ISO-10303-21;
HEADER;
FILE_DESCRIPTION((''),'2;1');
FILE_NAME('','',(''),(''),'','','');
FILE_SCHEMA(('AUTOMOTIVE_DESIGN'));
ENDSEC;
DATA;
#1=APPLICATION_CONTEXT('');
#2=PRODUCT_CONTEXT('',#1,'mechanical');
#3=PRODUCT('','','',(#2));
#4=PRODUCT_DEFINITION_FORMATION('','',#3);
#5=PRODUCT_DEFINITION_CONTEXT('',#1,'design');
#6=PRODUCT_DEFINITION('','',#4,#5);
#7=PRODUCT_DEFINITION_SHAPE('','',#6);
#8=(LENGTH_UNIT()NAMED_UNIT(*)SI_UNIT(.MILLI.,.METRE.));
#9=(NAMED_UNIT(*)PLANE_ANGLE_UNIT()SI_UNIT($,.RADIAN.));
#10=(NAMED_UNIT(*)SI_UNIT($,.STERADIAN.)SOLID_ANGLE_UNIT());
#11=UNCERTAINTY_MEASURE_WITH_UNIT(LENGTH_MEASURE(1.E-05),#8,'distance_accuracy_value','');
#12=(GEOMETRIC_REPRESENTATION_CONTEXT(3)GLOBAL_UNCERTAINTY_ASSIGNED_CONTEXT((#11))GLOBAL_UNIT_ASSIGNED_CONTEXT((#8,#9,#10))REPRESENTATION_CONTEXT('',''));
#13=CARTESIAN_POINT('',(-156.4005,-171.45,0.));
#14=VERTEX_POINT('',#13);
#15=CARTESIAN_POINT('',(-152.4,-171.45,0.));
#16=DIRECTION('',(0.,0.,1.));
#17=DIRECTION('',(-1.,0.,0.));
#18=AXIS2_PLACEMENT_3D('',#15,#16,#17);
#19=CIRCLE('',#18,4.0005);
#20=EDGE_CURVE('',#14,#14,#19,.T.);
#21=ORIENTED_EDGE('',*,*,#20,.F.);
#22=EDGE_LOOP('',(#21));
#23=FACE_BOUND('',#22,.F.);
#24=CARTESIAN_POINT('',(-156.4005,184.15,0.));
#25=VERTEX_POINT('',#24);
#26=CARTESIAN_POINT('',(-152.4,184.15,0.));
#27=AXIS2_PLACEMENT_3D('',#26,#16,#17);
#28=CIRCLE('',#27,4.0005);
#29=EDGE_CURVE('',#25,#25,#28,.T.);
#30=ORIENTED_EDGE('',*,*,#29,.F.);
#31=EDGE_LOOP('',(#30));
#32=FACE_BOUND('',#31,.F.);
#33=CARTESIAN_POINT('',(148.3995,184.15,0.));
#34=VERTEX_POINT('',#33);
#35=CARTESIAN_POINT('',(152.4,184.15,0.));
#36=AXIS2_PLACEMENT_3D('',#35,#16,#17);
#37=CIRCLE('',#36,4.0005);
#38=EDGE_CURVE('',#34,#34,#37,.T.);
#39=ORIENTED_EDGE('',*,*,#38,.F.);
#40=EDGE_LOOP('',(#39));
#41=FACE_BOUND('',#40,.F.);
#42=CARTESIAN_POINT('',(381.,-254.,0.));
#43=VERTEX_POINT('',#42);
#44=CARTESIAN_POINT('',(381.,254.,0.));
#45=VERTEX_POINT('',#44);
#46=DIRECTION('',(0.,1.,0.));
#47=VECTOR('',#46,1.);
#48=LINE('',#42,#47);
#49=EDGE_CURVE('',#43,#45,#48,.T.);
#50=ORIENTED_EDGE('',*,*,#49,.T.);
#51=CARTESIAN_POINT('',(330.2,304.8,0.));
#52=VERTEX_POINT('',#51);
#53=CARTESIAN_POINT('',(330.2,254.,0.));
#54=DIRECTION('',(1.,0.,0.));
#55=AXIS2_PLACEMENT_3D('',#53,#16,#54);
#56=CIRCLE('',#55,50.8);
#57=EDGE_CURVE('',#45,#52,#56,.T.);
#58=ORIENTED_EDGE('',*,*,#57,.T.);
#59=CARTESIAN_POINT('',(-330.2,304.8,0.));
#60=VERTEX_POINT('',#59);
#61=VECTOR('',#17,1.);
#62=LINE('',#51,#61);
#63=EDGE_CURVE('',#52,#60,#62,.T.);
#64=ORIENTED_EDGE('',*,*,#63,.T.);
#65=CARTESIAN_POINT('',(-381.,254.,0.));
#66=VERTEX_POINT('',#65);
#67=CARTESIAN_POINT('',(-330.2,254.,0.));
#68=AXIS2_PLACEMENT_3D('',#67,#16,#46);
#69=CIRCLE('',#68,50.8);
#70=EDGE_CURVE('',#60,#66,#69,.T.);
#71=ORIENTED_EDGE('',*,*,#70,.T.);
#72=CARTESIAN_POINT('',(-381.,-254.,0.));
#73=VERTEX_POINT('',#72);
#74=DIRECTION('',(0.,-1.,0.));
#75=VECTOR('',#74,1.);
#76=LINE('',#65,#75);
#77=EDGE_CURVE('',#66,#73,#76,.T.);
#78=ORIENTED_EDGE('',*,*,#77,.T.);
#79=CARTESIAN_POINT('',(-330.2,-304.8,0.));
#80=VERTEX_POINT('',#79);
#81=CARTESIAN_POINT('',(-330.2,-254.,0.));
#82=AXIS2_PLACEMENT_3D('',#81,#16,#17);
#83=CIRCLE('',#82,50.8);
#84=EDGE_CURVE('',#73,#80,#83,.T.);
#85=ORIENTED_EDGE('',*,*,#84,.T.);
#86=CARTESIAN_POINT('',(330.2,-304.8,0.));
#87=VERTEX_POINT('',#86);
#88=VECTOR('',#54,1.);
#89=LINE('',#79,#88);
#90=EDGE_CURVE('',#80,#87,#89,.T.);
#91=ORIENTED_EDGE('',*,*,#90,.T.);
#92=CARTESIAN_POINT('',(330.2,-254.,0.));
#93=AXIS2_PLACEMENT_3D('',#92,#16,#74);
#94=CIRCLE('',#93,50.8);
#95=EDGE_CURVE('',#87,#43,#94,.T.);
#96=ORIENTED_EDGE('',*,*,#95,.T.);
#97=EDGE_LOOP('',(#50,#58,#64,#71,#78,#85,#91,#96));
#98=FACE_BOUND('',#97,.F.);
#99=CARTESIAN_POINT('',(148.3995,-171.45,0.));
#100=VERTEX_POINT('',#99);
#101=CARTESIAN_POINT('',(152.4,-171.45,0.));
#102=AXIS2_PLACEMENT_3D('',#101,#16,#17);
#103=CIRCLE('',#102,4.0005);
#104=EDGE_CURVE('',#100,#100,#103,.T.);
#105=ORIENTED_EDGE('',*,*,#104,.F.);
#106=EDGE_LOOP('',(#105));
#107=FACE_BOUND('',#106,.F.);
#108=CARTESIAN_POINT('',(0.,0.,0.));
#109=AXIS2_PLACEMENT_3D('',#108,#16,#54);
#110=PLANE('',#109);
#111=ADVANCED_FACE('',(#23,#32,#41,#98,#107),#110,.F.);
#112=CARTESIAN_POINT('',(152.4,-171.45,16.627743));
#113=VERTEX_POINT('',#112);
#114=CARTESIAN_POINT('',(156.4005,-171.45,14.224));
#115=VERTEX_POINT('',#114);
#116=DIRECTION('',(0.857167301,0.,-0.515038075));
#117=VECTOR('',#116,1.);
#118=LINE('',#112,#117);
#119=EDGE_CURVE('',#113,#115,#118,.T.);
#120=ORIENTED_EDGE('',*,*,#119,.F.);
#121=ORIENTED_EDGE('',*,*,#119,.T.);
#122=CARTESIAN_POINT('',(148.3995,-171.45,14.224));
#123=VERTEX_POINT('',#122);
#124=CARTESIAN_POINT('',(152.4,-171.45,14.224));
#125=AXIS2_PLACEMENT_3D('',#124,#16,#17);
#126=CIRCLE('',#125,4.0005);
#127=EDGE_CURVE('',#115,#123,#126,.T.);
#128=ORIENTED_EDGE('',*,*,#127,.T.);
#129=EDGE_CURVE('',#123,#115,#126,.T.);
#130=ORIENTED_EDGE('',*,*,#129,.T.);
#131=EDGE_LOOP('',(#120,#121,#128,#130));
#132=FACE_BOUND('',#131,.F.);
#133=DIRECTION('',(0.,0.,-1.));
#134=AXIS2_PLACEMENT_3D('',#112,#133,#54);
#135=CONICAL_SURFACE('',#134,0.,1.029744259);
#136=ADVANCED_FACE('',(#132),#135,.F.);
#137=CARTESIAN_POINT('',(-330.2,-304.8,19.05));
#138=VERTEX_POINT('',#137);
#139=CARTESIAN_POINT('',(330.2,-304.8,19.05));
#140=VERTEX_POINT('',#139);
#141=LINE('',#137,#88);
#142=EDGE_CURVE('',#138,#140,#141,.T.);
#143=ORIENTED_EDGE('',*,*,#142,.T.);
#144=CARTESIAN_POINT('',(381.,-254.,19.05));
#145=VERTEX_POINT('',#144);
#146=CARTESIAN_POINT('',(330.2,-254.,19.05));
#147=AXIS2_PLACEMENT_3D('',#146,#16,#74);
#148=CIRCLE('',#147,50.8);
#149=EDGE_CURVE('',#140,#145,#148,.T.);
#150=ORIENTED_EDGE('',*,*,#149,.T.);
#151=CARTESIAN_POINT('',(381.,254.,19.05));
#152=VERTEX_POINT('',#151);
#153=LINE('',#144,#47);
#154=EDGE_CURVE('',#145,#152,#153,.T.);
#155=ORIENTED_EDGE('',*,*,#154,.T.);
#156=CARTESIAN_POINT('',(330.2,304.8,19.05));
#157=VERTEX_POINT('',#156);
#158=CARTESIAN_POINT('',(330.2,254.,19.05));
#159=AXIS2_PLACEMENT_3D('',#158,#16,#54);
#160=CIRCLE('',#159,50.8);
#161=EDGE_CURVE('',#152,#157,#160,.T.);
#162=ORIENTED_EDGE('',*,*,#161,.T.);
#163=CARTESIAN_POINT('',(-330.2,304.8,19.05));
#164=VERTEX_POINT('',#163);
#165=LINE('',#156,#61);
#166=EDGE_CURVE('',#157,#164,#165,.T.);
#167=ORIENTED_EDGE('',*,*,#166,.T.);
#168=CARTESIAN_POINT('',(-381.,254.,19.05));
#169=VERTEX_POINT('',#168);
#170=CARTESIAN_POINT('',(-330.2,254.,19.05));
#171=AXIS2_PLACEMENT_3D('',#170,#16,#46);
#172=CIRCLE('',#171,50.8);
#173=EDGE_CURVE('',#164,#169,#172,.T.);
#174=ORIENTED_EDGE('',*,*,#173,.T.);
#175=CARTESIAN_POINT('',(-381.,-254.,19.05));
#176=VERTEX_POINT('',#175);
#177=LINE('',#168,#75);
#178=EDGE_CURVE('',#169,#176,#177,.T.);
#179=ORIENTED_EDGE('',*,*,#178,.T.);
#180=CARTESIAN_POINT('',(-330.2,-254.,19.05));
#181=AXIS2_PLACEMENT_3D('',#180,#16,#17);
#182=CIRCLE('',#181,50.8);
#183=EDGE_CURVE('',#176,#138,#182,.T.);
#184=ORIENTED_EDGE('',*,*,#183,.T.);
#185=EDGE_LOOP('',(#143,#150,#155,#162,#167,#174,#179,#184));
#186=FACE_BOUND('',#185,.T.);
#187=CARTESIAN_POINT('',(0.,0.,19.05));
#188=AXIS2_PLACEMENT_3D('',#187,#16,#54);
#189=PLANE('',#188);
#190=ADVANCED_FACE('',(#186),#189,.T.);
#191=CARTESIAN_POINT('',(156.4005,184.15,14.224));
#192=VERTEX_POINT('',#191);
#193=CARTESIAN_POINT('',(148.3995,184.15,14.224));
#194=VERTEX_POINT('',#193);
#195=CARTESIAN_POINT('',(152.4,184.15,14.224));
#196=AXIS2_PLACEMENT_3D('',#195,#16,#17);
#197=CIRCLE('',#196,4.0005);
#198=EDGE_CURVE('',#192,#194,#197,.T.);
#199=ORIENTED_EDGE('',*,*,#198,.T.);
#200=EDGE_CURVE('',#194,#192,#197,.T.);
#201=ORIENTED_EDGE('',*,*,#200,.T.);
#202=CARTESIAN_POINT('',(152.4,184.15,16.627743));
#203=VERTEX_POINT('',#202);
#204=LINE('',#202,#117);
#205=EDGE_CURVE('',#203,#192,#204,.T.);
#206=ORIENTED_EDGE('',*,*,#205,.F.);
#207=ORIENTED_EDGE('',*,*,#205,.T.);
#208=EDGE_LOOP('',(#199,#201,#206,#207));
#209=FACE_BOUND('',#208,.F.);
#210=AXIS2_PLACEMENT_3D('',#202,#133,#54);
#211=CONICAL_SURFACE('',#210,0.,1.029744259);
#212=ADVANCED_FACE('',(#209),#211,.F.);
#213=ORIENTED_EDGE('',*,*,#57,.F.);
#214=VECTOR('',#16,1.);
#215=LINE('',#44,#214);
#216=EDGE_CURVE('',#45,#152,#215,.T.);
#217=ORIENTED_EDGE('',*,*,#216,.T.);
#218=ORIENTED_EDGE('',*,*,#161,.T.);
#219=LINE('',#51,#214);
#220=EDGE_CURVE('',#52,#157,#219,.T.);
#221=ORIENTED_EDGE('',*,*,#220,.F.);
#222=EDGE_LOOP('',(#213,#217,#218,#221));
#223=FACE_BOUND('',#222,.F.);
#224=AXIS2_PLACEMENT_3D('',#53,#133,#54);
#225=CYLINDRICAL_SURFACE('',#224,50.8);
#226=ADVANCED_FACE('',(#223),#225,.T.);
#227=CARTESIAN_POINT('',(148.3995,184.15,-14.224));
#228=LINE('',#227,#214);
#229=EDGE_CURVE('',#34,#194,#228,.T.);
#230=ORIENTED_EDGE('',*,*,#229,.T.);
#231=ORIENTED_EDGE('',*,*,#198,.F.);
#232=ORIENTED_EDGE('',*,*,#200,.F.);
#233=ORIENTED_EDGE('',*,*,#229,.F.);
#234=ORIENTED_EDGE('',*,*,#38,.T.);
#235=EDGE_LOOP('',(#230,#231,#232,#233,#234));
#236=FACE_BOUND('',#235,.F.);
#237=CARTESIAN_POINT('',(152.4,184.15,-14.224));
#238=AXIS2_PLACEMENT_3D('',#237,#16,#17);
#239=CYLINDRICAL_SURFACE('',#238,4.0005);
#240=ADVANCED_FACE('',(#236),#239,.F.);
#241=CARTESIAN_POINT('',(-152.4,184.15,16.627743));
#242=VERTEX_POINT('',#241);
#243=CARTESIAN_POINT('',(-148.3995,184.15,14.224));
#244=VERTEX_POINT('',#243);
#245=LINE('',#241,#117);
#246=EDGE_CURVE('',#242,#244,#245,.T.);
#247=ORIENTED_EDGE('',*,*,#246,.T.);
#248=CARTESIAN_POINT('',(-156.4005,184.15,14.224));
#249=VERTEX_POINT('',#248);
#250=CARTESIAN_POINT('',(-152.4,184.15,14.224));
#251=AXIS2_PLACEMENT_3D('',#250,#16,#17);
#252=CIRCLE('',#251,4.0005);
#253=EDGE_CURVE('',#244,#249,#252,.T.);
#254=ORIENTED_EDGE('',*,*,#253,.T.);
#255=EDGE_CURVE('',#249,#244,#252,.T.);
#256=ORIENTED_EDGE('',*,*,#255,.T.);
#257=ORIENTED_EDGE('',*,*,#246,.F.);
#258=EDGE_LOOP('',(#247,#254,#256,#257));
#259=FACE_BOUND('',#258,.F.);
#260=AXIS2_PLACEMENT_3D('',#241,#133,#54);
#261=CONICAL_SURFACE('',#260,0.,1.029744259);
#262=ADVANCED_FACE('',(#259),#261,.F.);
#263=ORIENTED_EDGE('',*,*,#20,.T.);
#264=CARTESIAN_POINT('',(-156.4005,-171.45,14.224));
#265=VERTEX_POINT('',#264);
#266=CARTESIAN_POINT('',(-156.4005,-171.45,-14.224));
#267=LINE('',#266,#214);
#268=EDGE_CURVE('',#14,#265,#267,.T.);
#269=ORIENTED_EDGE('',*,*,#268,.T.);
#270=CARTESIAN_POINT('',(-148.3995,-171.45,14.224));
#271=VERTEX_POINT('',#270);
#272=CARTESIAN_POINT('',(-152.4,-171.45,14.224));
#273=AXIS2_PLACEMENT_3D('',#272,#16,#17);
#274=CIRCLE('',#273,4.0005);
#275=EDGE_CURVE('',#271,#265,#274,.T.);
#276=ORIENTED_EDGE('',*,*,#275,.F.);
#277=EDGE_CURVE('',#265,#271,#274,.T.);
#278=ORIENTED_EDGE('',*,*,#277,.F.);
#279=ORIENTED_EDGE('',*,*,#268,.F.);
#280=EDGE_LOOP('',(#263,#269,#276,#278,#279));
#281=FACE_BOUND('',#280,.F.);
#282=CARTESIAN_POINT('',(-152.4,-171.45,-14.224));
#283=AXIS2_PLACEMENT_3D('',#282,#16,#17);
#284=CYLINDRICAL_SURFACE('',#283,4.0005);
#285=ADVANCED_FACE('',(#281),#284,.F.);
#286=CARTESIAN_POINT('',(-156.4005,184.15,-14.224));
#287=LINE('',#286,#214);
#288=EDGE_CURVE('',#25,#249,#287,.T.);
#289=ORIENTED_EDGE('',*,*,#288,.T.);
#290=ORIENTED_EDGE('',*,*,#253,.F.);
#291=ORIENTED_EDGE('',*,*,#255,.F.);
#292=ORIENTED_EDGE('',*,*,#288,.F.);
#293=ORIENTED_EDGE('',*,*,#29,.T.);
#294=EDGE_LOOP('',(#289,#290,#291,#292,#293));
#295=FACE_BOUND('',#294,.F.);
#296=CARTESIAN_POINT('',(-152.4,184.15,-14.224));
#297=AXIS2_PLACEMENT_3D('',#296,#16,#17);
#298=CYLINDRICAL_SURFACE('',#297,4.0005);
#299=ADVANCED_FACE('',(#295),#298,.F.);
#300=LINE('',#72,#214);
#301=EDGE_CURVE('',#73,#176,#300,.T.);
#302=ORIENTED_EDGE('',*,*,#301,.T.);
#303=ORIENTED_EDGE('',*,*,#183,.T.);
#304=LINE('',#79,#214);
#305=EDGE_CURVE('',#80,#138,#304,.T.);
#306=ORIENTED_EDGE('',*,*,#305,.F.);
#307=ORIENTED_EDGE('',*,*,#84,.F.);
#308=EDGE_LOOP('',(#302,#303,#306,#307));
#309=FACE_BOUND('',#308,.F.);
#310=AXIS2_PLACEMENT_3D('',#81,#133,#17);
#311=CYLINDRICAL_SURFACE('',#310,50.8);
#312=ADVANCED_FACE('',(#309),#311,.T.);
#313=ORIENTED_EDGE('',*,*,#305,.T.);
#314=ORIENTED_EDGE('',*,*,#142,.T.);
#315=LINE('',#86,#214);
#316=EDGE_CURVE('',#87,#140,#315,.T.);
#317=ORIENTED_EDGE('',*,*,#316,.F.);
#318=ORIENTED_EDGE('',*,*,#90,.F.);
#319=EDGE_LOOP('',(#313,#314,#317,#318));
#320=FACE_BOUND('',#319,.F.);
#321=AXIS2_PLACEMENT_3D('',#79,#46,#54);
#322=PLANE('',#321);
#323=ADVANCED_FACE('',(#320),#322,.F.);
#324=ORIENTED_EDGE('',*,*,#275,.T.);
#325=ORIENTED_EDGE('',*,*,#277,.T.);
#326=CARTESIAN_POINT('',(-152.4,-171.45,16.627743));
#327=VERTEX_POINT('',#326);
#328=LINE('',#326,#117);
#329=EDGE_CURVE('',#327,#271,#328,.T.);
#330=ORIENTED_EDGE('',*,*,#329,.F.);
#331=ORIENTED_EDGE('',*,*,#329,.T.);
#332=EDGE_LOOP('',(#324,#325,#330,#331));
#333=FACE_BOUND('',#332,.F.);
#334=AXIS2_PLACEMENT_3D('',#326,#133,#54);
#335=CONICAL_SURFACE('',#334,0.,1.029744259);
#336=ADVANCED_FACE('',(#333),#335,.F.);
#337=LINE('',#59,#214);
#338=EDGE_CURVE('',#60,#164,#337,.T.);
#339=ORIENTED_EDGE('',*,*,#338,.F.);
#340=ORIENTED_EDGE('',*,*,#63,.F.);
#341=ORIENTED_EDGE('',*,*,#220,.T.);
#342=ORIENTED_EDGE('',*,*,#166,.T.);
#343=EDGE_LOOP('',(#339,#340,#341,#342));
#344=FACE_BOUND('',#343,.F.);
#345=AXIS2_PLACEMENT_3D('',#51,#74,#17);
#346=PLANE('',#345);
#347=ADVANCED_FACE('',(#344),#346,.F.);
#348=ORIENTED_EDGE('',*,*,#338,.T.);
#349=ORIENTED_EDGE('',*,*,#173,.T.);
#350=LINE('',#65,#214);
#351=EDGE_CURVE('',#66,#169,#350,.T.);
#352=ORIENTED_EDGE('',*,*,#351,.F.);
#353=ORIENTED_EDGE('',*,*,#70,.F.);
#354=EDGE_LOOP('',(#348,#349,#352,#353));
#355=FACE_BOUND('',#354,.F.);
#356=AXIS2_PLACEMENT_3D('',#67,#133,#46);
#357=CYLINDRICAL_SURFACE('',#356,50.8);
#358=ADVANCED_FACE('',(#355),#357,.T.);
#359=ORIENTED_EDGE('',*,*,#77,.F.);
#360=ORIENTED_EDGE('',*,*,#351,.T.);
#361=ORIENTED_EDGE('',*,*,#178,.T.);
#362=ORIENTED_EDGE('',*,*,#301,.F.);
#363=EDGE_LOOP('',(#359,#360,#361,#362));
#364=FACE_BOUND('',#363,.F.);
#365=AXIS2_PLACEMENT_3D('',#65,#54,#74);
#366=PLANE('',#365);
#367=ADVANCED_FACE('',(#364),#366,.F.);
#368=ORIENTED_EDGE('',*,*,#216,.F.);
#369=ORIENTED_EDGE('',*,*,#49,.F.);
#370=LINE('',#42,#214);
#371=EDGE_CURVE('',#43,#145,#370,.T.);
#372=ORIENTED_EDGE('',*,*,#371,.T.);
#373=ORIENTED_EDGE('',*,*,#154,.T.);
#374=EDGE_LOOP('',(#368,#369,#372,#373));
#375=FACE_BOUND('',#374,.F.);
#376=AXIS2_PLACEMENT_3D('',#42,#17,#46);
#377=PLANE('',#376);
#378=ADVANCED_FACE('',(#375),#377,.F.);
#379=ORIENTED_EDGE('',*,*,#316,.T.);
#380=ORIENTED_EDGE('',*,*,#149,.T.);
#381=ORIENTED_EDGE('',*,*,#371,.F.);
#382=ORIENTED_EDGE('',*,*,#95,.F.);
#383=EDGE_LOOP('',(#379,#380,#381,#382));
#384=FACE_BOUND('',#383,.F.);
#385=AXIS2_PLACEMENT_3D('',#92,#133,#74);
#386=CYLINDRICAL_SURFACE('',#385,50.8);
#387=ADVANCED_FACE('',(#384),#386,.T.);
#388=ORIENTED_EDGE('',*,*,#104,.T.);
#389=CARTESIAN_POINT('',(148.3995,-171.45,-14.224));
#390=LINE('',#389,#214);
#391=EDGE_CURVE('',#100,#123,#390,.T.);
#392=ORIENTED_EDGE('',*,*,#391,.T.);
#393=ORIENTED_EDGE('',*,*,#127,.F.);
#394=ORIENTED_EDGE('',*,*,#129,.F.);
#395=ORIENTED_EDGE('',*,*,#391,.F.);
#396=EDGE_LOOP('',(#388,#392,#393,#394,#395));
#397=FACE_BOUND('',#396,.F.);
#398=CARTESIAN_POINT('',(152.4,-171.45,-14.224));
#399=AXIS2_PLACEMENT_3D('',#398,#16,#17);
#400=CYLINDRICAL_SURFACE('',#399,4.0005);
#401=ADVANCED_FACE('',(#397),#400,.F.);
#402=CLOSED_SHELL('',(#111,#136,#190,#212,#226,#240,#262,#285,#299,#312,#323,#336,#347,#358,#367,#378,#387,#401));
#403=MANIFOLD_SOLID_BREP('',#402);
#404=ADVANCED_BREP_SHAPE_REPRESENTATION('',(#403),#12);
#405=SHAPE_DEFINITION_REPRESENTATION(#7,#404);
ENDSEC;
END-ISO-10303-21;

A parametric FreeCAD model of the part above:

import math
import FreeCAD as App
import Part
import Sketcher
Q = App.Units.Quantity

doc = App.newDocument("Part")
body = doc.addObject("PartDesign::Body", "Body")

sketch1 = body.newObject("Sketcher::SketchObject", "Sketch")
sketch1.AttachmentSupport = (doc.getObject("XY_Plane"), [""])
sketch1.MapMode = "FlatFace"
sketch1.addGeometry([
    Part.LineSegment(App.Vector(330, 305, 0), App.Vector(-330, 305, 0)),
    Part.ArcOfCircle(Part.Circle(App.Vector(-330, 254, 0), App.Vector(0, 0, 1), 51), math.radians(90), math.radians(180)),
    Part.LineSegment(App.Vector(-381, 254, 0), App.Vector(-381, -254, 0)),
    Part.ArcOfCircle(Part.Circle(App.Vector(-330, -254, 0), App.Vector(0, 0, 1), 51), math.radians(180), math.radians(270)),
    Part.LineSegment(App.Vector(-330, -305, 0), App.Vector(330, -305, 0)),
    Part.ArcOfCircle(Part.Circle(App.Vector(330, -254, 0), App.Vector(0, 0, 1), 51), math.radians(-90), math.radians(0)),
    Part.LineSegment(App.Vector(381, -254, 0), App.Vector(381, 254, 0)),
    Part.ArcOfCircle(Part.Circle(App.Vector(330, 254, 0), App.Vector(0, 0, 1), 51), math.radians(0), math.radians(90)),
], False)
sketch1.addConstraint([
    Sketcher.Constraint("Tangent", 0, 2, 1, 1),
    Sketcher.Constraint("Tangent", 1, 2, 2, 1),
    Sketcher.Constraint("Tangent", 2, 2, 3, 1),
    Sketcher.Constraint("Tangent", 3, 2, 4, 1),
    Sketcher.Constraint("Tangent", 4, 2, 5, 1),
    Sketcher.Constraint("Tangent", 5, 2, 6, 1),
    Sketcher.Constraint("Tangent", 6, 2, 7, 1),
    Sketcher.Constraint("Tangent", 7, 2, 0, 1),
    Sketcher.Constraint("Horizontal", 0),
    Sketcher.Constraint("Vertical", 2),
    Sketcher.Constraint("Horizontal", 4),
    Sketcher.Constraint("Vertical", 6),
    Sketcher.Constraint("Equal", 1, 3),
    Sketcher.Constraint("Equal", 3, 5),
    Sketcher.Constraint("Equal", 5, 7),
    Sketcher.Constraint("Symmetric", 1, 3, 5, 3, -1, 1),
    Sketcher.Constraint("Radius", 1, Q("2 in")),
    Sketcher.Constraint("DistanceX", 0, 2, 0, 1, Q("26 in")),
    Sketcher.Constraint("DistanceY", 2, 2, 2, 1, Q("20 in")),
])
pad1 = body.newObject("PartDesign::Pad", "Pad")
pad1.Profile = sketch1
pad1.Length = Q("0.75 in")

sketch2 = body.newObject("Sketcher::SketchObject", "Sketch001")
sketch2.AttachmentSupport = (doc.getObject("XY_Plane"), [""])
sketch2.MapMode = "FlatFace"
sketch2.addGeometry([
    Part.Circle(App.Vector(-152.4, -171.4, 0), App.Vector(0, 0, 1), 4),
    Part.Circle(App.Vector(152.4, -171.4, 0), App.Vector(0, 0, 1), 4),
    Part.Circle(App.Vector(152.4, 184.2, 0), App.Vector(0, 0, 1), 4),
    Part.Circle(App.Vector(-152.4, 184.2, 0), App.Vector(0, 0, 1), 4),
], False)
sketch2.addConstraint([
    Sketcher.Constraint("Equal", 0, 1),
    Sketcher.Constraint("Equal", 1, 2),
    Sketcher.Constraint("Equal", 2, 3),
    Sketcher.Constraint("Symmetric", 0, 3, 1, 3, -2),
    Sketcher.Constraint("Symmetric", 2, 3, 3, 3, -2),
    Sketcher.Constraint("Vertical", 1, 3, 2, 3),
    Sketcher.Constraint("Diameter", 0, Q("0.315 in")),
    Sketcher.Constraint("DistanceX", 0, 3, -1, 1, Q("6 in")),
    Sketcher.Constraint("DistanceY", 1, 3, 2, 3, Q("14 in")),
    Sketcher.Constraint("DistanceY", 0, 3, -1, 1, Q("6.75 in")),
])
doc.recompute()
hole = body.newObject("PartDesign::Hole", "Hole")
hole.Profile = sketch2
hole.ThreadType = "None"
hole.Diameter = Q("0.315 in")
hole.DepthType = "Dimension"
hole.Depth = Q("0.56 in")
hole.DrillPoint = "Angled"
hole.DrillPointAngle = 118
hole.Reversed = True

doc.recompute()
